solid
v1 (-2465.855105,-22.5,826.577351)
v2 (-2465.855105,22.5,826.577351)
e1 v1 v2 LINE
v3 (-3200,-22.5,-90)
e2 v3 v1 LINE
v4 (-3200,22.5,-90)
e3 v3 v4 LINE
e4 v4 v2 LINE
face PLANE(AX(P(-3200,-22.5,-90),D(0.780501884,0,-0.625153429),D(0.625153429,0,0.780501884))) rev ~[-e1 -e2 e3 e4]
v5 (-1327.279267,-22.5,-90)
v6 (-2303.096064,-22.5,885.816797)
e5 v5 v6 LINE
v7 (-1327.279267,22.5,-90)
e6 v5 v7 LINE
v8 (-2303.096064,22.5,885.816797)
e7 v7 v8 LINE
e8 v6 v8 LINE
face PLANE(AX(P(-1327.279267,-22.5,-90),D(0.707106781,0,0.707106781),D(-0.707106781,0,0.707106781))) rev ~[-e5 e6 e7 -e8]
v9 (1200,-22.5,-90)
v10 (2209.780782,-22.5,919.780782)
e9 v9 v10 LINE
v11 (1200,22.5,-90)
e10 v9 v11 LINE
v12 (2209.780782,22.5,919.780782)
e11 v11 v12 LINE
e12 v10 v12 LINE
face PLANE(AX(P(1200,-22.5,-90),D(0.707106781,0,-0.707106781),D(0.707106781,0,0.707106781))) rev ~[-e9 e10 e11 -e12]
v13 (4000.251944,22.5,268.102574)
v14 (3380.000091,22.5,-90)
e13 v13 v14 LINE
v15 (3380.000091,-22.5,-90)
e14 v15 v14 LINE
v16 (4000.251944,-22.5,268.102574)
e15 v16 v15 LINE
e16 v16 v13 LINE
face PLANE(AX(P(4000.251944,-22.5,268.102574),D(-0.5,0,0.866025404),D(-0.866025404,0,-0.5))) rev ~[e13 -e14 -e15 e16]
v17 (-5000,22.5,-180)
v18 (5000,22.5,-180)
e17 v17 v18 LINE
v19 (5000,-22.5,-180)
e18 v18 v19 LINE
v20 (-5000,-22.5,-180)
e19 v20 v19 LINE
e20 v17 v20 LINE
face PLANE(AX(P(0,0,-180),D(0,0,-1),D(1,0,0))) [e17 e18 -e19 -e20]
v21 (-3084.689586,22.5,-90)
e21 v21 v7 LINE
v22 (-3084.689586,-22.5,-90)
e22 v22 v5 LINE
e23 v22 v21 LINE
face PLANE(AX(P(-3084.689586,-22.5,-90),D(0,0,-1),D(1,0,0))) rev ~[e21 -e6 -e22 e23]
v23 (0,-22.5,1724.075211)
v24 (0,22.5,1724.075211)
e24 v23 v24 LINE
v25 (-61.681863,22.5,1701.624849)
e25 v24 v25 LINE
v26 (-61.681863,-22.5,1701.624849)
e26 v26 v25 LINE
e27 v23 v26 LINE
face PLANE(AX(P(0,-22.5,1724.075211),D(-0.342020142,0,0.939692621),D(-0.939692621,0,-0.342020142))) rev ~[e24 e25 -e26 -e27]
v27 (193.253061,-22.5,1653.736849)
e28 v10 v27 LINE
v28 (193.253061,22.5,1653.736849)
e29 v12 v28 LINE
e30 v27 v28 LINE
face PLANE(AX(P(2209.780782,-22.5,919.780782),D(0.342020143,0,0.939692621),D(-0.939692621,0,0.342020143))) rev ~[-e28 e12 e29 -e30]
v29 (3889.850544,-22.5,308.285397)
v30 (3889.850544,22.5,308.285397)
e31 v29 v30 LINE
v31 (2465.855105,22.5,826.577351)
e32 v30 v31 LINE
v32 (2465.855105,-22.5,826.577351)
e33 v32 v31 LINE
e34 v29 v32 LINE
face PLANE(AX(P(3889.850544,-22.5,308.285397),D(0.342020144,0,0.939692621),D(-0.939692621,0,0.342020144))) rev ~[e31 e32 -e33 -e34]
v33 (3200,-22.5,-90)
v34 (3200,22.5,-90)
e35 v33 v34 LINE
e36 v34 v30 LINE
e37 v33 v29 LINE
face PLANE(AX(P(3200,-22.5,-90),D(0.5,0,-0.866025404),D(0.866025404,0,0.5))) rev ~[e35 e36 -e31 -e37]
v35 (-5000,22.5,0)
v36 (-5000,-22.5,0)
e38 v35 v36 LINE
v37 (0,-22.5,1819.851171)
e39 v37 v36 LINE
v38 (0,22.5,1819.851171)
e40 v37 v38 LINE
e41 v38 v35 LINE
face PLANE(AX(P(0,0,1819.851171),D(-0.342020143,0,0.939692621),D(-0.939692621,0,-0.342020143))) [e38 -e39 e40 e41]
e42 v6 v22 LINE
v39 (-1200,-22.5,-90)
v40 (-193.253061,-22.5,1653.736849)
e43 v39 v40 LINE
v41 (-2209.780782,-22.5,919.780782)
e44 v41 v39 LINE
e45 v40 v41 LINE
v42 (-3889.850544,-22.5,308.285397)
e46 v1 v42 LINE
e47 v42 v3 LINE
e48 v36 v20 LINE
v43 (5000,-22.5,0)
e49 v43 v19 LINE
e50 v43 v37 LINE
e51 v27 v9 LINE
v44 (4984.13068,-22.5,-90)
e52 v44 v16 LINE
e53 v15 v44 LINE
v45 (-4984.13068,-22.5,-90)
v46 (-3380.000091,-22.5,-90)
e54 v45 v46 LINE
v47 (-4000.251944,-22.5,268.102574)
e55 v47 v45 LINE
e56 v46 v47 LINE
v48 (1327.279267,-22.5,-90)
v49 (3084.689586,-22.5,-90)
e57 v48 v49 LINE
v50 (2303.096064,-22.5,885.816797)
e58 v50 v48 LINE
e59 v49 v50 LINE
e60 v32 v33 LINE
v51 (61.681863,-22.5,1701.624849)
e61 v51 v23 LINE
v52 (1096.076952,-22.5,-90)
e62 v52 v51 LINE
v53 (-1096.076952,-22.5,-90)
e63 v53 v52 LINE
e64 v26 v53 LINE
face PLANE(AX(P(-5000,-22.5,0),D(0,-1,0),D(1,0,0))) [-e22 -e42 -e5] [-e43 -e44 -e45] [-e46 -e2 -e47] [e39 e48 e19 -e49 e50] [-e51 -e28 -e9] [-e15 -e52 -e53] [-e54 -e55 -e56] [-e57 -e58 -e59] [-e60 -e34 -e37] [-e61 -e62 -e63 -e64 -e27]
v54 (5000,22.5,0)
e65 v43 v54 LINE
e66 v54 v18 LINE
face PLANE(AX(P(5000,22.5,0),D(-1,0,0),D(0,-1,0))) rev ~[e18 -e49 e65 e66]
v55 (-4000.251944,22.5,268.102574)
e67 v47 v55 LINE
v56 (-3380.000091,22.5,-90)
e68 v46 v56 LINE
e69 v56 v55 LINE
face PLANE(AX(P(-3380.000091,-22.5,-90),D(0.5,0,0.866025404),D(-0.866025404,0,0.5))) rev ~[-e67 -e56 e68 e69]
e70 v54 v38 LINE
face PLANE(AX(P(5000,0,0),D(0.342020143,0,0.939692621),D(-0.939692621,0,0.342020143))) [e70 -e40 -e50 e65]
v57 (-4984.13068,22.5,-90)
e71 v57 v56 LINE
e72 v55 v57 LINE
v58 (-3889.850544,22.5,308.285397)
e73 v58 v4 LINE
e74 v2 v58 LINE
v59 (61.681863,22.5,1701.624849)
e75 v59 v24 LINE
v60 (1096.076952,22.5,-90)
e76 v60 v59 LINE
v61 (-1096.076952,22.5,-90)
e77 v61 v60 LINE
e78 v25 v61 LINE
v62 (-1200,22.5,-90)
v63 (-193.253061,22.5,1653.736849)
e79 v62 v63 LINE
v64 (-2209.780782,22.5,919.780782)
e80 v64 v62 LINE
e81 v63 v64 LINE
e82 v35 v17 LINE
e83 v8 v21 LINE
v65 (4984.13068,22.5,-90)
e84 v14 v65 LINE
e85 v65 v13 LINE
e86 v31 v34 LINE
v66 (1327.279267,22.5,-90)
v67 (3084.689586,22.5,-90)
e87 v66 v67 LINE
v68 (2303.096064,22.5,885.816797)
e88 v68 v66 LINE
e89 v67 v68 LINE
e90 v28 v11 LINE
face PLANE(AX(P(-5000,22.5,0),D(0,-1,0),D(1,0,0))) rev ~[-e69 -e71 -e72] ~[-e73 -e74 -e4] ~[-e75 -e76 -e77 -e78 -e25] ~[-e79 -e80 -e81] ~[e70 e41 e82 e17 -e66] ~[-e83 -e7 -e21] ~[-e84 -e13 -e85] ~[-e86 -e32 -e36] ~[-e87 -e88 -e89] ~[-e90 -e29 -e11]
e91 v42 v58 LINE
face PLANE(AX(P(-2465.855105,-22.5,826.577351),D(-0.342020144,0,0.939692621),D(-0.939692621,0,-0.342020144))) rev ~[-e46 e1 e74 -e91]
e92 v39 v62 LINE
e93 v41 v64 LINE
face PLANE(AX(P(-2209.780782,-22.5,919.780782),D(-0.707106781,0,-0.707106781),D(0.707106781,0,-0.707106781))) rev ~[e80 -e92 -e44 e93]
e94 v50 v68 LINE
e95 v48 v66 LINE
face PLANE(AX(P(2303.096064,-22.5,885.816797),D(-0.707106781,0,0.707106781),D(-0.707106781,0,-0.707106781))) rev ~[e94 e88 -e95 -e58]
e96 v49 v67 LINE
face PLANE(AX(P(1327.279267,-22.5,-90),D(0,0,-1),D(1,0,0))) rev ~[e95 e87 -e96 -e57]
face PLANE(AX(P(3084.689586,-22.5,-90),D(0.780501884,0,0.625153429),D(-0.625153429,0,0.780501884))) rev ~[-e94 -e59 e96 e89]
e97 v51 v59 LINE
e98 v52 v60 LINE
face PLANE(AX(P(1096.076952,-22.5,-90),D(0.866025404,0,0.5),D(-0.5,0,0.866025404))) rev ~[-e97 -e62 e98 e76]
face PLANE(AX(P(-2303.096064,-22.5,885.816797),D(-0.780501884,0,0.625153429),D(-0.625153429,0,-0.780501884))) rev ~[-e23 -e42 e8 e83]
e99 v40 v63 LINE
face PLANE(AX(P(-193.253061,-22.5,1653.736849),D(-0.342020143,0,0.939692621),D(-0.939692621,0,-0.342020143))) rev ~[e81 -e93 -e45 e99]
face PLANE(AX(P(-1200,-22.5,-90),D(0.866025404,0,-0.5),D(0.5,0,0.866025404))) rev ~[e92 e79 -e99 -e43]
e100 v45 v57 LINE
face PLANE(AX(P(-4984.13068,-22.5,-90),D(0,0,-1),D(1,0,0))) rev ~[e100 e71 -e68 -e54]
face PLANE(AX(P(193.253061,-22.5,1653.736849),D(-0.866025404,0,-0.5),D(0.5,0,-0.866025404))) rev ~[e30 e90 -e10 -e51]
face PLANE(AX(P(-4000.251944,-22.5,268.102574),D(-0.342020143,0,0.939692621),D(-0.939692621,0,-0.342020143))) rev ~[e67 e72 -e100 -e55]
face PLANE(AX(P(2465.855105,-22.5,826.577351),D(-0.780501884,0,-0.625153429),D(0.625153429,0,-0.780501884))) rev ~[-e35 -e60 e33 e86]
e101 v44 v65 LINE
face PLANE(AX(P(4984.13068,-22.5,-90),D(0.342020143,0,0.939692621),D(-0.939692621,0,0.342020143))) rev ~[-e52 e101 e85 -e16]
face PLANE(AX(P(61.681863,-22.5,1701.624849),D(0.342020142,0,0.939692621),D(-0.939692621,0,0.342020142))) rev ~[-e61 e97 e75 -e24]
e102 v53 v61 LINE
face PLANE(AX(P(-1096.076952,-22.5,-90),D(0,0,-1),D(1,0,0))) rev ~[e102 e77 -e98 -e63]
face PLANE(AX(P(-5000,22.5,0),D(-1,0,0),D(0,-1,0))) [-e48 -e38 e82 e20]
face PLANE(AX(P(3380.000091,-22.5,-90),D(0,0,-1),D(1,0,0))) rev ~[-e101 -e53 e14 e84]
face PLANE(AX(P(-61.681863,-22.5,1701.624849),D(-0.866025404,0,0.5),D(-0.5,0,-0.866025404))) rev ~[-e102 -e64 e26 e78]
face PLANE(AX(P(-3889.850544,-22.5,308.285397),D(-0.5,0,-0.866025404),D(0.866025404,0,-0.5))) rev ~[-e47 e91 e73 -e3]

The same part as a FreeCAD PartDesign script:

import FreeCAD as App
import Part
import Sketcher
Q = App.Units.Quantity


def add_polygon(sketch, points):
    """Adds a closed chain of lines whose ends are joined by coincident constraints."""
    first, n = sketch.GeometryCount, len(points)
    for a, b in zip(points, points[1:] + points[:1]):
        sketch.addGeometry(Part.LineSegment(App.Vector(*a, 0), App.Vector(*b, 0)), False)
    for i in range(n):
        sketch.addConstraint(Sketcher.Constraint("Coincident", first + i, 2, first + (i + 1) % n, 1))

doc = App.newDocument("Part")
body = doc.addObject("PartDesign::Body", "Body")

# Sketch on XZ plane
sketch1 = body.newObject("Sketcher::SketchObject", "Sketch")
sketch1.AttachmentSupport = (doc.getObject("XZ_Plane"), [""])
sketch1.MapMode = "FlatFace"
add_polygon(sketch1, [(0, 1820), (-5000, 0), (5000, 0)])  # lines 0-2
sketch1.addConstraint([
    Sketcher.Constraint("Horizontal", 1),
    Sketcher.Constraint("Symmetric", 0, 2, 1, 2, -1, 1),
    Sketcher.Constraint("PointOnObject", 2, 2, -2),
    Sketcher.Constraint("DistanceX", 1, 1, 1, 2, 10000.0),
    Sketcher.Constraint("Angle", 0, Q("-160 deg")),
])
pad1 = body.newObject("PartDesign::Pad", "Pad")
pad1.Profile = sketch1
pad1.Length = 45
pad1.Midplane = True

# Sketch on XY plane
sketch2 = body.newObject("Sketcher::SketchObject", "Sketch001")
sketch2.AttachmentSupport = (doc.getObject("XY_Plane"), [""])
sketch2.MapMode = "FlatFace"
add_polygon(sketch2, [(-5000, -22), (-5000, 22), (5000, 22), (5000, -22)])  # lines 0-3
sketch2.addConstraint([
    Sketcher.Constraint("Vertical", 0),
    Sketcher.Constraint("Horizontal", 1),
    Sketcher.Constraint("Vertical", 2),
    Sketcher.Constraint("Horizontal", 3),
    Sketcher.Constraint("Symmetric", 0, 2, 2, 2, -1, 1),
    Sketcher.Constraint("DistanceX", 1, 1, 1, 2, 10000.0),
    Sketcher.Constraint("DistanceY", 0, 1, 0, 2, 45.0),
])
pad2 = body.newObject("PartDesign::Pad", "Pad001")
pad2.Profile = sketch2
pad2.Length = 180
pad2.Reversed = True

# Sketch on XZ plane
sketch3 = body.newObject("Sketcher::SketchObject", "Sketch002")
sketch3.AttachmentSupport = (doc.getObject("XZ_Plane"), [""])
sketch3.MapMode = "FlatFace"
sketch3.AttachmentOffset = App.Placement(App.Vector(0, 0, 22.5), App.Rotation())
add_polygon(sketch3, [(-4000, 268), (-4984, -90), (-3380, -90)])  # lines 0-2
add_polygon(sketch3, [(-1200, -90), (-193, 1654), (-2210, 920)])  # lines 3-5
add_polygon(sketch3, [(0, 1724), (-62, 1702), (-1096, -90), (1096, -90), (62, 1702)])  # lines 6-10
add_polygon(sketch3, [(-3085, -90), (-1327, -90), (-2303, 886)])  # lines 11-13
add_polygon(sketch3, [(3200, -90), (3890, 308), (2466, 827)])  # lines 14-16
add_polygon(sketch3, [(1200, -90), (2210, 920), (193, 1654)])  # lines 17-19
add_polygon(sketch3, [(2303, 886), (1327, -90), (3085, -90)])  # lines 20-22
add_polygon(sketch3, [(3380, -90), (4984, -90), (4000, 268)])  # lines 23-25
add_polygon(sketch3, [(-3890, 308), (-3200, -90), (-2466, 827)])  # lines 26-28
sketch3.addConstraint([
    Sketcher.Constraint("Horizontal", 1),
    Sketcher.Constraint("Horizontal", 8),
    Sketcher.Constraint("Horizontal", 11),
    Sketcher.Constraint("Horizontal", 21),
    Sketcher.Constraint("Horizontal", 23),
    Sketcher.Constraint("Symmetric", 6, 2, 9, 2, -2),
    Sketcher.Constraint("Symmetric", 4, 2, 17, 2, -2),
    Sketcher.Constraint("Symmetric", 3, 2, 18, 2, -2),
    Sketcher.Constraint("Symmetric", 5, 2, 19, 2, -2),
    Sketcher.Constraint("Symmetric", 11, 2, 20, 2, -2),
    Sketcher.Constraint("Symmetric", 12, 2, 22, 2, -2),
    Sketcher.Constraint("Symmetric", 0, 2, 23, 2, -2),
    Sketcher.Constraint("Symmetric", 2, 2, 24, 2, -2),
    Sketcher.Constraint("Symmetric", 16, 2, 26, 2, -2),
    Sketcher.Constraint("Symmetric", 15, 2, 27, 2, -2),
    Sketcher.Constraint("Symmetric", 14, 2, 28, 2, -2),
    Sketcher.Constraint("PointOnObject", 10, 2, -2),
    Sketcher.Constraint("Perpendicular", 2, 3),
    Sketcher.Constraint("Parallel", 0, 4),
    Sketcher.Constraint("Parallel", 4, 6),
    Sketcher.Constraint("Parallel", 3, 7),
    Sketcher.Constraint("Parallel", 5, 12),
    Sketcher.Constraint("Perpendicular", 9, 14),
    Sketcher.Constraint("Parallel", 10, 15),
    Sketcher.Constraint("Perpendicular", 12, 17),
    Sketcher.Constraint("Perpendicular", 14, 19),
    Sketcher.Constraint("Parallel", 16, 22),
    Sketcher.Constraint("Perpendicular", 19, 25),
    Sketcher.Constraint("Parallel", 13, 27),
    Sketcher.Constraint("Horizontal", 1, 2, 5, 2),
    Sketcher.Constraint("Horizontal", 5, 2, 7, 2),
    Sketcher.Constraint("Horizontal", 8, 2, 11, 2),
    Sketcher.Constraint("Horizontal", 13, 2, 16, 2),
    Sketcher.Constraint("Angle", 0, Q("-160 deg")),
    Sketcher.Constraint("Angle", 2, Q("150 deg")),
    Sketcher.Constraint("DistanceY", 0, 2, -1, 1, 90.0),
    Sketcher.Constraint("DistanceX", 5, 2, -1, 1, 1200.0),
    Sketcher.Constraint("DistanceX", -1, 1, 16, 2, 3200.0),
    Sketcher.Constraint("DistanceY", 3, 2, 6, 2, 47.888),
    Sketcher.Constraint("DistanceX", 1, 1, 1, 2, 1604.130589),
    Sketcher.Constraint("DistanceX", 11, 1, 11, 2, 1757.410319),
    Sketcher.Constraint("DistanceX", 0, 2, 4, 2, 2774.349898),
    Sketcher.Constraint("DistanceX", 3, 2, 6, 2, 131.571198),
    Sketcher.Constraint("DistanceY", 15, 2, 9, 2, 875.047498),
    Sketcher.Constraint("DistanceX", 14, 2, 24, 2, 110.4014),
    Sketcher.Constraint("Distance", 3, 2013.493878),
    Sketcher.Constraint("DistanceX", 12, 2, 7, 2, 1207.019112),
])
pocket1 = body.newObject("PartDesign::Pocket", "Pocket")
pocket1.Profile = sketch3
pocket1.Type = "ThroughAll"

doc.recompute()
